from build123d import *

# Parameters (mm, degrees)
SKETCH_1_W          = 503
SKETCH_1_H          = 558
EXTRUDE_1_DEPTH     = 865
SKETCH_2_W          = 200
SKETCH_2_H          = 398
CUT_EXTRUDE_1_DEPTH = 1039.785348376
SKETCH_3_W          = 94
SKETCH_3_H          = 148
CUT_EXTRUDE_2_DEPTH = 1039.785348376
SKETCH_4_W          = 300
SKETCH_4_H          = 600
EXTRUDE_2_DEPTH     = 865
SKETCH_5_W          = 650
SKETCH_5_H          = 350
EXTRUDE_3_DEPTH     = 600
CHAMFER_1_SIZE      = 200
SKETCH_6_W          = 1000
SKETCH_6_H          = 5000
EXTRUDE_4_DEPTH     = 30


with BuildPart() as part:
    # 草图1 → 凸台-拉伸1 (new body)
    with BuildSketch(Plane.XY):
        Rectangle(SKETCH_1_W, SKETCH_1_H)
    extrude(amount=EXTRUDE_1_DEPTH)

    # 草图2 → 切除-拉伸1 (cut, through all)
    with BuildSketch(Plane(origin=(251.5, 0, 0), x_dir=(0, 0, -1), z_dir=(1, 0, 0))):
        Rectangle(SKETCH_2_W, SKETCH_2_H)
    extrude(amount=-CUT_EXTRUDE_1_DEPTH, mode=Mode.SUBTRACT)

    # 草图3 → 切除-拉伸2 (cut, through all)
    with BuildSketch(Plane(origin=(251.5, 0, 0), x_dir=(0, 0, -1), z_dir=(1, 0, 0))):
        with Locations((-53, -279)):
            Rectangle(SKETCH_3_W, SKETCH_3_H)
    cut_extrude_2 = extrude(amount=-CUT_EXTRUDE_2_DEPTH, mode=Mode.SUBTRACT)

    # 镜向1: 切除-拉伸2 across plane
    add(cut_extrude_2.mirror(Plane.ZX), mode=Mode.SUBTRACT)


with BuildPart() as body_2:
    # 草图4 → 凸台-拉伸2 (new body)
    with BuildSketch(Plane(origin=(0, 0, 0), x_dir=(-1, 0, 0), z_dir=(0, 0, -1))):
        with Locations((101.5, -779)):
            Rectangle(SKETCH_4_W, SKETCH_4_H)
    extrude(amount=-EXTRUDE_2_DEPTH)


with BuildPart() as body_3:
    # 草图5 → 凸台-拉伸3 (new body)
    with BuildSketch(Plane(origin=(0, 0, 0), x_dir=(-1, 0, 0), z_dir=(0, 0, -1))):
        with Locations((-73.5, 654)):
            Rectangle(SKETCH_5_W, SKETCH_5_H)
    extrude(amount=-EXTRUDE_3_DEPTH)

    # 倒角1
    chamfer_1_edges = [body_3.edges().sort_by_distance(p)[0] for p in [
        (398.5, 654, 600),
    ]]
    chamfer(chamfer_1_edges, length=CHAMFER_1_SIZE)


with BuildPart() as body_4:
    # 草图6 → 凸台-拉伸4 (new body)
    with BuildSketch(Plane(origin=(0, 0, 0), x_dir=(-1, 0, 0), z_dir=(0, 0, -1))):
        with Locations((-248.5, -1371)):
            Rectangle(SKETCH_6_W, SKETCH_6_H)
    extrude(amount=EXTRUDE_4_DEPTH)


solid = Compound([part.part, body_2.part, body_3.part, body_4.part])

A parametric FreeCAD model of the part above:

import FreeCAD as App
import Part
import Sketcher
Q = App.Units.Quantity


def edges_at(feature, points):
    """Names of the edges that pass closest to the given points."""
    edges = feature.Shape.Edges
    near = lambda p: min(range(len(edges)), key=lambda i: edges[i].distToShape(Part.Vertex(*p))[0])
    return sorted({f"Edge{near(p) + 1}" for p in points})

doc = App.newDocument("Part")
params = doc.addObject("Spreadsheet::Sheet", "Params")
for row, (alias, value) in enumerate([
    ("sketch1_width", "503 mm"),
    ("sketch1_height", "558 mm"),
    ("pad1_length", "865 mm"),
    ("sketch2_width", "398 mm"),
    ("sketch2_height", "200 mm"),
    ("sketch3_width", "148 mm"),
    ("sketch3_height", "94 mm"),
    ("sketch4_width", "300 mm"),
    ("sketch4_height", "600 mm"),
    ("pad2_length", "865 mm"),
    ("sketch5_width", "650 mm"),
    ("sketch5_height", "350 mm"),
    ("pad3_length", "600 mm"),
    ("chamfer_size", "200 mm"),
    ("sketch6_width", "1000 mm"),
    ("sketch6_height", "5000 mm"),
    ("pad4_length", "30 mm"),
], start=1):
    params.set(f"A{row}", alias)
    params.set(f"B{row}", "=" + value)
    params.setAlias(f"B{row}", alias)

body = doc.addObject("PartDesign::Body", "Body")

sketch1 = doc.addObject("Sketcher::SketchObject", "Sketch")
body.addObject(sketch1)
sketch1.AttachmentSupport = (doc.XY_Plane, [""])
sketch1.MapMode = "FlatFace"
sketch1.addGeometry(Part.LineSegment(App.Vector(-251.5, 279, 0), App.Vector(-251.5, -279, 0)), False)
sketch1.addGeometry(Part.LineSegment(App.Vector(-251.5, -279, 0), App.Vector(251.5, -279, 0)), False)
sketch1.addGeometry(Part.LineSegment(App.Vector(251.5, -279, 0), App.Vector(251.5, 279, 0)), False)
sketch1.addGeometry(Part.LineSegment(App.Vector(251.5, 279, 0), App.Vector(-251.5, 279, 0)), False)
sketch1.addConstraint(Sketcher.Constraint("Coincident", 0, 2, 1, 1))
sketch1.addConstraint(Sketcher.Constraint("Coincident", 1, 2, 2, 1))
sketch1.addConstraint(Sketcher.Constraint("Coincident", 2, 2, 3, 1))
sketch1.addConstraint(Sketcher.Constraint("Coincident", 3, 2, 0, 1))
sketch1.addConstraint(Sketcher.Constraint("Vertical", 0))
sketch1.addConstraint(Sketcher.Constraint("Horizontal", 1))
sketch1.addConstraint(Sketcher.Constraint("Vertical", 2))
sketch1.addConstraint(Sketcher.Constraint("Horizontal", 3))
sketch1.addConstraint(Sketcher.Constraint("Symmetric", 0, 2, 2, 2, -1, 1))
sketch1.addConstraint(Sketcher.Constraint("DistanceX", 1, 1, 1, 2, Q("503 mm")))
sketch1.addConstraint(Sketcher.Constraint("DistanceY", 0, 2, 0, 1, Q("558 mm")))
sketch1.setExpression("Constraints[9]", "Params.sketch1_width")
sketch1.setExpression("Constraints[10]", "Params.sketch1_height")
pad1 = doc.addObject("PartDesign::Pad", "Pad")
body.addObject(pad1)
pad1.Profile = sketch1
pad1.setExpression("Length", "Params.pad1_length")

sketch2 = doc.addObject("Sketcher::SketchObject", "Sketch001")
body.addObject(sketch2)
sketch2.AttachmentSupport = (doc.YZ_Plane, [""])
sketch2.MapMode = "FlatFace"
sketch2.AttachmentOffset = App.Placement(App.Vector(0, 0, 251.5), App.Rotation())
sketch2.addGeometry(Part.LineSegment(App.Vector(199, 100, 0), App.Vector(-199, 100, 0)), False)
sketch2.addGeometry(Part.LineSegment(App.Vector(-199, 100, 0), App.Vector(-199, -100, 0)), False)
sketch2.addGeometry(Part.LineSegment(App.Vector(-199, -100, 0), App.Vector(199, -100, 0)), False)
sketch2.addGeometry(Part.LineSegment(App.Vector(199, -100, 0), App.Vector(199, 100, 0)), False)
sketch2.addConstraint(Sketcher.Constraint("Coincident", 0, 2, 1, 1))
sketch2.addConstraint(Sketcher.Constraint("Coincident", 1, 2, 2, 1))
sketch2.addConstraint(Sketcher.Constraint("Coincident", 2, 2, 3, 1))
sketch2.addConstraint(Sketcher.Constraint("Coincident", 3, 2, 0, 1))
sketch2.addConstraint(Sketcher.Constraint("Horizontal", 0))
sketch2.addConstraint(Sketcher.Constraint("Vertical", 1))
sketch2.addConstraint(Sketcher.Constraint("Horizontal", 2))
sketch2.addConstraint(Sketcher.Constraint("Vertical", 3))
sketch2.addConstraint(Sketcher.Constraint("Symmetric", 0, 2, 2, 2, -1, 1))
sketch2.addConstraint(Sketcher.Constraint("DistanceX", 0, 2, 0, 1, Q("398 mm")))
sketch2.addConstraint(Sketcher.Constraint("DistanceY", 1, 2, 1, 1, Q("200 mm")))
sketch2.setExpression("Constraints[9]", "Params.sketch2_width")
sketch2.setExpression("Constraints[10]", "Params.sketch2_height")
pocket1 = doc.addObject("PartDesign::Pocket", "Pocket")
body.addObject(pocket1)
pocket1.Profile = sketch2
pocket1.Type = "ThroughAll"

sketch3 = doc.addObject("Sketcher::SketchObject", "Sketch002")
body.addObject(sketch3)
sketch3.AttachmentSupport = (doc.YZ_Plane, [""])
sketch3.MapMode = "FlatFace"
sketch3.AttachmentOffset = App.Placement(App.Vector(0, 0, 251.5), App.Rotation())
sketch3.addGeometry(Part.LineSegment(App.Vector(-205, 100, 0), App.Vector(-353, 100, 0)), False)
sketch3.addGeometry(Part.LineSegment(App.Vector(-353, 100, 0), App.Vector(-353, 6, 0)), False)
sketch3.addGeometry(Part.LineSegment(App.Vector(-353, 6, 0), App.Vector(-205, 6, 0)), False)
sketch3.addGeometry(Part.LineSegment(App.Vector(-205, 6, 0), App.Vector(-205, 100, 0)), False)
sketch3.addConstraint(Sketcher.Constraint("Coincident", 0, 2, 1, 1))
sketch3.addConstraint(Sketcher.Constraint("Coincident", 1, 2, 2, 1))
sketch3.addConstraint(Sketcher.Constraint("Coincident", 2, 2, 3, 1))
sketch3.addConstraint(Sketcher.Constraint("Coincident", 3, 2, 0, 1))
sketch3.addConstraint(Sketcher.Constraint("Horizontal", 0))
sketch3.addConstraint(Sketcher.Constraint("Vertical", 1))
sketch3.addConstraint(Sketcher.Constraint("Horizontal", 2))
sketch3.addConstraint(Sketcher.Constraint("Vertical", 3))
sketch3.addConstraint(Sketcher.Constraint("DistanceX", 0, 2, 0, 1, Q("148 mm")))
sketch3.addConstraint(Sketcher.Constraint("DistanceY", 1, 2, 1, 1, Q("94 mm")))
sketch3.addConstraint(Sketcher.Constraint("DistanceX", 0, 2, -1, 1, Q("353 mm")))
sketch3.addConstraint(Sketcher.Constraint("DistanceY", -1, 1, 0, 2, Q("100 mm")))
sketch3.setExpression("Constraints[8]", "Params.sketch3_width")
sketch3.setExpression("Constraints[9]", "Params.sketch3_height")
pocket2 = doc.addObject("PartDesign::Pocket", "Pocket001")
body.addObject(pocket2)
pocket2.Profile = sketch3
pocket2.Type = "ThroughAll"
doc.recompute()

mirrored = doc.addObject("PartDesign::Mirrored", "Mirrored")
body.addObject(mirrored)
mirrored.Originals = [pocket2]
mirrored.MirrorPlane = (doc.XZ_Plane, [""])
body.Tip = mirrored
body2 = doc.addObject("PartDesign::Body", "Body001")

sketch4 = doc.addObject("Sketcher::SketchObject", "Sketch003")
body2.addObject(sketch4)
sketch4.AttachmentSupport = (doc.getObject("XY_Plane001"), [""])
sketch4.MapMode = "FlatFace"
sketch4.addGeometry(Part.LineSegment(App.Vector(48.5, -479, 0), App.Vector(48.5, -1079, 0)), False)
sketch4.addGeometry(Part.LineSegment(App.Vector(48.5, -1079, 0), App.Vector(-251.5, -1079, 0)), False)
sketch4.addGeometry(Part.LineSegment(App.Vector(-251.5, -1079, 0), App.Vector(-251.5, -479, 0)), False)
sketch4.addGeometry(Part.LineSegment(App.Vector(-251.5, -479, 0), App.Vector(48.5, -479, 0)), False)
sketch4.addConstraint(Sketcher.Constraint("Coincident", 0, 2, 1, 1))
sketch4.addConstraint(Sketcher.Constraint("Coincident", 1, 2, 2, 1))
sketch4.addConstraint(Sketcher.Constraint("Coincident", 2, 2, 3, 1))
sketch4.addConstraint(Sketcher.Constraint("Coincident", 3, 2, 0, 1))
sketch4.addConstraint(Sketcher.Constraint("Vertical", 0))
sketch4.addConstraint(Sketcher.Constraint("Horizontal", 1))
sketch4.addConstraint(Sketcher.Constraint("Vertical", 2))
sketch4.addConstraint(Sketcher.Constraint("Horizontal", 3))
sketch4.addConstraint(Sketcher.Constraint("DistanceX", 1, 2, 1, 1, Q("300 mm")))
sketch4.addConstraint(Sketcher.Constraint("DistanceY", 0, 2, 0, 1, Q("600 mm")))
sketch4.addConstraint(Sketcher.Constraint("DistanceY", 0, 2, -1, 1, Q("1079 mm")))
sketch4.addConstraint(Sketcher.Constraint("DistanceX", -1, 1, 0, 2, Q("48.5 mm")))
sketch4.setExpression("Constraints[8]", "Params.sketch4_width")
sketch4.setExpression("Constraints[9]", "Params.sketch4_height")
pad2 = doc.addObject("PartDesign::Pad", "Pad001")
body2.addObject(pad2)
pad2.Profile = sketch4
pad2.setExpression("Length", "Params.pad2_length")
body3 = doc.addObject("PartDesign::Body", "Body002")

sketch5 = doc.addObject("Sketcher::SketchObject", "Sketch004")
body3.addObject(sketch5)
sketch5.AttachmentSupport = (doc.getObject("XY_Plane002"), [""])
sketch5.MapMode = "FlatFace"
sketch5.addGeometry(Part.LineSegment(App.Vector(398.5, 829, 0), App.Vector(398.5, 479, 0)), False)
sketch5.addGeometry(Part.LineSegment(App.Vector(398.5, 479, 0), App.Vector(-251.5, 479, 0)), False)
sketch5.addGeometry(Part.LineSegment(App.Vector(-251.5, 479, 0), App.Vector(-251.5, 829, 0)), False)
sketch5.addGeometry(Part.LineSegment(App.Vector(-251.5, 829, 0), App.Vector(398.5, 829, 0)), False)
sketch5.addConstraint(Sketcher.Constraint("Coincident", 0, 2, 1, 1))
sketch5.addConstraint(Sketcher.Constraint("Coincident", 1, 2, 2, 1))
sketch5.addConstraint(Sketcher.Constraint("Coincident", 2, 2, 3, 1))
sketch5.addConstraint(Sketcher.Constraint("Coincident", 3, 2, 0, 1))
sketch5.addConstraint(Sketcher.Constraint("Vertical", 0))
sketch5.addConstraint(Sketcher.Constraint("Horizontal", 1))
sketch5.addConstraint(Sketcher.Constraint("Vertical", 2))
sketch5.addConstraint(Sketcher.Constraint("Horizontal", 3))
sketch5.addConstraint(Sketcher.Constraint("DistanceX", 1, 2, 1, 1, Q("650 mm")))
sketch5.addConstraint(Sketcher.Constraint("DistanceY", 0, 2, 0, 1, Q("350 mm")))
sketch5.addConstraint(Sketcher.Constraint("DistanceY", -1, 1, 0, 2, Q("479 mm")))
sketch5.addConstraint(Sketcher.Constraint("DistanceX", -1, 1, 0, 2, Q("398.5 mm")))
sketch5.setExpression("Constraints[8]", "Params.sketch5_width")
sketch5.setExpression("Constraints[9]", "Params.sketch5_height")
pad3 = doc.addObject("PartDesign::Pad", "Pad002")
body3.addObject(pad3)
pad3.Profile = sketch5
pad3.setExpression("Length", "Params.pad3_length")
doc.recompute()

chamfer = doc.addObject("PartDesign::Chamfer", "Chamfer")
body3.addObject(chamfer)
chamfer.Base = (pad3, edges_at(pad3, [(398.5, 654, 600)]))
chamfer.setExpression("Size", "Params.chamfer_size")
body4 = doc.addObject("PartDesign::Body", "Body003")

sketch6 = doc.addObject("Sketcher::SketchObject", "Sketch005")
body4.addObject(sketch6)
sketch6.AttachmentSupport = (doc.getObject("XY_Plane003"), [""])
sketch6.MapMode = "FlatFace"
sketch6.addGeometry(Part.LineSegment(App.Vector(748.5, 1129, 0), App.Vector(748.5, -3871, 0)), False)
sketch6.addGeometry(Part.LineSegment(App.Vector(748.5, -3871, 0), App.Vector(-251.5, -3871, 0)), False)
sketch6.addGeometry(Part.LineSegment(App.Vector(-251.5, -3871, 0), App.Vector(-251.5, 1129, 0)), False)
sketch6.addGeometry(Part.LineSegment(App.Vector(-251.5, 1129, 0), App.Vector(748.5, 1129, 0)), False)
sketch6.addConstraint(Sketcher.Constraint("Coincident", 0, 2, 1, 1))
sketch6.addConstraint(Sketcher.Constraint("Coincident", 1, 2, 2, 1))
sketch6.addConstraint(Sketcher.Constraint("Coincident", 2, 2, 3, 1))
sketch6.addConstraint(Sketcher.Constraint("Coincident", 3, 2, 0, 1))
sketch6.addConstraint(Sketcher.Constraint("Vertical", 0))
sketch6.addConstraint(Sketcher.Constraint("Horizontal", 1))
sketch6.addConstraint(Sketcher.Constraint("Vertical", 2))
sketch6.addConstraint(Sketcher.Constraint("Horizontal", 3))
sketch6.addConstraint(Sketcher.Constraint("DistanceX", 1, 2, 1, 1, Q("1000 mm")))
sketch6.addConstraint(Sketcher.Constraint("DistanceY", 0, 2, 0, 1, Q("5000 mm")))
sketch6.addConstraint(Sketcher.Constraint("DistanceY", 0, 2, -1, 1, Q("3871 mm")))
sketch6.addConstraint(Sketcher.Constraint("DistanceX", -1, 1, 0, 2, Q("748.5 mm")))
sketch6.setExpression("Constraints[8]", "Params.sketch6_width")
sketch6.setExpression("Constraints[9]", "Params.sketch6_height")
pad4 = doc.addObject("PartDesign::Pad", "Pad003")
body4.addObject(pad4)
pad4.Profile = sketch6
pad4.setExpression("Length", "Params.pad4_length")
pad4.Reversed = True

doc.recompute()
